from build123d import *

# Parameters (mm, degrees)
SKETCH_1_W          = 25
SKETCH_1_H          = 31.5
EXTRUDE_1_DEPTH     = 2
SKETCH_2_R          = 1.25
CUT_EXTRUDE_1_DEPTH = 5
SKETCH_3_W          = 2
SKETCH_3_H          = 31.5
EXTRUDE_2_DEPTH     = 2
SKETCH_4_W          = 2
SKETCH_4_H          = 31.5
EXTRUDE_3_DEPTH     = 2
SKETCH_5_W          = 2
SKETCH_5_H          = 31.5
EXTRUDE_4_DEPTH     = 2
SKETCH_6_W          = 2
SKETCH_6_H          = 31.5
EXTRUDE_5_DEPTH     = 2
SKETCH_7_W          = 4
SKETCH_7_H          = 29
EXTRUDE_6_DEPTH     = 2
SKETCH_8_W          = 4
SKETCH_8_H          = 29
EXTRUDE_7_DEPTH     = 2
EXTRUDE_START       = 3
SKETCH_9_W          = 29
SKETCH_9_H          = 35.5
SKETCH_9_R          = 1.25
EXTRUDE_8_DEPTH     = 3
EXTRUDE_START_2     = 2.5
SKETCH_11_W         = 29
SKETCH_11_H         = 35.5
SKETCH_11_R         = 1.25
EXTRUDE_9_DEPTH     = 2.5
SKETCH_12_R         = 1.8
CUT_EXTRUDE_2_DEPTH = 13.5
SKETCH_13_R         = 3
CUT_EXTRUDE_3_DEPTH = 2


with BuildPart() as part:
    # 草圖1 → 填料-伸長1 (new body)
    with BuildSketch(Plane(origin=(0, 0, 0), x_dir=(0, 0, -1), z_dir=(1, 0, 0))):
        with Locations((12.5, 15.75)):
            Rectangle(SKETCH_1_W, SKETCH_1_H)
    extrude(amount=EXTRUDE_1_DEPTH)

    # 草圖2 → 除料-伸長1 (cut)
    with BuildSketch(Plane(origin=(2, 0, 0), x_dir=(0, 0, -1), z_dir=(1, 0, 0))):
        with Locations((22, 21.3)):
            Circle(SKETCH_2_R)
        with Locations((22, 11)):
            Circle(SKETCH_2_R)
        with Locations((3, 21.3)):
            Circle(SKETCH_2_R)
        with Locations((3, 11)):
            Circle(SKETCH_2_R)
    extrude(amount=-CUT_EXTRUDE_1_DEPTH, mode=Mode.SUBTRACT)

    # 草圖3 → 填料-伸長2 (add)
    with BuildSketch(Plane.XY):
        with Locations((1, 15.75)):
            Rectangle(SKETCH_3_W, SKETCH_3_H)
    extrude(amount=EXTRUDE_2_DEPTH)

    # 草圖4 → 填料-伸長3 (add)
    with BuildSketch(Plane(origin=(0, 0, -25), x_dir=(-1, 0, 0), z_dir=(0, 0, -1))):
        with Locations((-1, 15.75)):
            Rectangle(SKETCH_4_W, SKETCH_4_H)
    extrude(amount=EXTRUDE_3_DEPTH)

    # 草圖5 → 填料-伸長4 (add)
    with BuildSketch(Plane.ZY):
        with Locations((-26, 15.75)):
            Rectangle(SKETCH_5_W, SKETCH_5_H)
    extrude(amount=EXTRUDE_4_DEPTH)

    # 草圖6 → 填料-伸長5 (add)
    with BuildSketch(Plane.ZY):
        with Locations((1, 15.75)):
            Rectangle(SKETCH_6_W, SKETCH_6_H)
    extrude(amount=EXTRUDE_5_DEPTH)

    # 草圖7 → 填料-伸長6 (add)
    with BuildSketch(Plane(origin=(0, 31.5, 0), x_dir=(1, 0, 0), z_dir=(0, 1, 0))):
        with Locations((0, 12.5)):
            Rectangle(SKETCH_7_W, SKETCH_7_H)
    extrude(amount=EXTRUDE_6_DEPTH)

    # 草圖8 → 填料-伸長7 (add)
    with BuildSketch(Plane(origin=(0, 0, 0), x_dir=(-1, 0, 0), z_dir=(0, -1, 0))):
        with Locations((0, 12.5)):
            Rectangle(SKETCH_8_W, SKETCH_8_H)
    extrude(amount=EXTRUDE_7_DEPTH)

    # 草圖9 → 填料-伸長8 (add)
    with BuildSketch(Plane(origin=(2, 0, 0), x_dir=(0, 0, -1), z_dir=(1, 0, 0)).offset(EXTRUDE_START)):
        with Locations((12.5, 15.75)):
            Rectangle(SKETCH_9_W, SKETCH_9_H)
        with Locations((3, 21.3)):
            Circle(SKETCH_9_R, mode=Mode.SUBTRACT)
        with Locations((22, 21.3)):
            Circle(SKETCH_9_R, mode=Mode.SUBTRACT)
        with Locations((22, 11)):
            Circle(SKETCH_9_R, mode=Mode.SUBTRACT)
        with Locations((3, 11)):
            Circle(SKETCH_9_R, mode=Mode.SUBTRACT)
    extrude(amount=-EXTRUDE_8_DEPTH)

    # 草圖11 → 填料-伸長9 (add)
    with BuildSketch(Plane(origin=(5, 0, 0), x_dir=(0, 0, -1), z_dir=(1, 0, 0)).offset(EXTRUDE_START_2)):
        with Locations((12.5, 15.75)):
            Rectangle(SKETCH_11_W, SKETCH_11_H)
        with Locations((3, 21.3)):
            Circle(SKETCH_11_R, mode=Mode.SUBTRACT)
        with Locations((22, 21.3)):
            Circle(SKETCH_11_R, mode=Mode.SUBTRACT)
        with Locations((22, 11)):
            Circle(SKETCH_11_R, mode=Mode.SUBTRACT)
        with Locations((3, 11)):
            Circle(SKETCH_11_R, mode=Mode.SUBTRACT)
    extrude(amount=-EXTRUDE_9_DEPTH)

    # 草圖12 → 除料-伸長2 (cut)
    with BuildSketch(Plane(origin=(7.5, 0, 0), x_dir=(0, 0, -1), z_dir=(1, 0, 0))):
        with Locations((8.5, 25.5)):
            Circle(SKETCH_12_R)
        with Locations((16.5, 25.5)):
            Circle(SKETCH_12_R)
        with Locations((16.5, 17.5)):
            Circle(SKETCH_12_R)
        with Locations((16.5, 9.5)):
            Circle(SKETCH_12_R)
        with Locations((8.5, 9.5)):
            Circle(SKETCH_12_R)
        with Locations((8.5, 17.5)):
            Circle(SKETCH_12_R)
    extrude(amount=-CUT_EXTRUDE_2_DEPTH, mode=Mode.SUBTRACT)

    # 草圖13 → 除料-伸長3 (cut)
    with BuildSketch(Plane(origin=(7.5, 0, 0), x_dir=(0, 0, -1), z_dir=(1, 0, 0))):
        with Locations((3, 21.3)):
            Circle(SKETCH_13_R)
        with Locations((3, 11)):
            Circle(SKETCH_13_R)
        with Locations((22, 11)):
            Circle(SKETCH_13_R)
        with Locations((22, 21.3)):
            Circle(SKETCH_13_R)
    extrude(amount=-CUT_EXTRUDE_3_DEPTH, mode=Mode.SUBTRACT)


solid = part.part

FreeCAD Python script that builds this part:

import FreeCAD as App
import Part
import Sketcher

V = App.Vector
Q = App.Units.Quantity


def add_polygon(sketch, points):
    """Adds a closed chain of lines whose ends are joined by coincident constraints."""
    first, n = sketch.GeometryCount, len(points)
    for a, b in zip(points, points[1:] + points[:1]):
        sketch.addGeometry(Part.LineSegment(App.Vector(*a, 0), App.Vector(*b, 0)), False)
    for i in range(n):
        sketch.addConstraint(Sketcher.Constraint("Coincident", first + i, 2, first + (i + 1) % n, 1))

doc = App.newDocument("Part")
body = doc.addObject("PartDesign::Body", "Body")

# Sketch on YZ plane
sketch1 = body.newObject("Sketcher::SketchObject", "Sketch")
sketch1.AttachmentSupport = (doc.getObject("YZ_Plane"), [""])
sketch1.MapMode = "FlatFace"
add_polygon(sketch1, [(32, 0), (0, 0), (0, -25), (32, -25)])  # lines 0-3
sketch1.addConstraint([
    Sketcher.Constraint("Horizontal", 0),
    Sketcher.Constraint("Vertical", 1),
    Sketcher.Constraint("Horizontal", 2),
    Sketcher.Constraint("Vertical", 3),
    Sketcher.Constraint("Coincident", 0, 2, -1, 1),
    Sketcher.Constraint("DistanceY", 1, 2, 1, 1, Q("25 mm")),
    Sketcher.Constraint("DistanceX", 0, 2, 0, 1, Q("31.5 mm")),
])
pad1 = body.newObject("PartDesign::Pad", "Pad")
pad1.Profile = sketch1
pad1.Length = 2

# Sketch on YZ plane
sketch2 = body.newObject("Sketcher::SketchObject", "Sketch001")
sketch2.AttachmentSupport = (doc.getObject("YZ_Plane"), [""])
sketch2.MapMode = "FlatFace"
sketch2.AttachmentOffset = App.Placement(V(0, 0, 2), App.Rotation())
sketch2.addGeometry([
    Part.Circle(V(21.3, -22, 0), V(0, 0, 1), 1.2),
    Part.Circle(V(11, -22, 0), V(0, 0, 1), 1.2),
    Part.Circle(V(21.3, -3, 0), V(0, 0, 1), 1.2),
    Part.Circle(V(11, -3, 0), V(0, 0, 1), 1.2),
], False)
sketch2.addConstraint([
    Sketcher.Constraint("Equal", 0, 1),
    Sketcher.Constraint("Equal", 1, 2),
    Sketcher.Constraint("Equal", 2, 3),
    Sketcher.Constraint("Horizontal", 0, 3, 1, 3),
    Sketcher.Constraint("Horizontal", 2, 3, 3, 3),
    Sketcher.Constraint("Vertical", 0, 3, 2, 3),
    Sketcher.Constraint("Vertical", 1, 3, 3, 3),
    Sketcher.Constraint("Diameter", 0, Q("2.5 mm")),
    Sketcher.Constraint("DistanceY", 0, 3, -1, 1, Q("22 mm")),
    Sketcher.Constraint("DistanceX", -1, 1, 1, 3, Q("11 mm")),
    Sketcher.Constraint("DistanceY", 2, 3, -1, 1, Q("3 mm")),
    Sketcher.Constraint("DistanceX", -1, 1, 0, 3, Q("21.3 mm")),
])
pocket1 = body.newObject("PartDesign::Pocket", "Pocket")
pocket1.Profile = sketch2
pocket1.Length = 5

# Sketch on XY plane
sketch3 = body.newObject("Sketcher::SketchObject", "Sketch002")
sketch3.AttachmentSupport = (doc.getObject("XY_Plane"), [""])
sketch3.MapMode = "FlatFace"
add_polygon(sketch3, [(0, 31.5), (0, 0), (2, 0), (2, 31.5)])  # lines 0-3
sketch3.addConstraint([
    Sketcher.Constraint("Vertical", 0),
    Sketcher.Constraint("Horizontal", 1),
    Sketcher.Constraint("Vertical", 2),
    Sketcher.Constraint("Horizontal", 3),
    Sketcher.Constraint("Coincident", 0, 2, -1, 1),
    Sketcher.Constraint("DistanceX", 1, 1, 1, 2, Q("2 mm")),
    Sketcher.Constraint("DistanceY", 0, 2, 0, 1, Q("31.5 mm")),
])
pad2 = body.newObject("PartDesign::Pad", "Pad001")
pad2.Profile = sketch3
pad2.Length = 2

# Sketch on XY plane
sketch4 = body.newObject("Sketcher::SketchObject", "Sketch003")
sketch4.AttachmentSupport = (doc.getObject("XY_Plane"), [""])
sketch4.MapMode = "FlatFace"
sketch4.AttachmentOffset = App.Placement(V(0, 0, -25), App.Rotation())
add_polygon(sketch4, [(2, 31.5), (2, 0), (0, 0), (0, 31.5)])  # lines 0-3
sketch4.addConstraint([
    Sketcher.Constraint("Vertical", 0),
    Sketcher.Constraint("Horizontal", 1),
    Sketcher.Constraint("Vertical", 2),
    Sketcher.Constraint("Horizontal", 3),
    Sketcher.Constraint("Coincident", 1, 2, -1, 1),
    Sketcher.Constraint("DistanceX", 1, 2, 1, 1, Q("2 mm")),
    Sketcher.Constraint("DistanceY", 0, 2, 0, 1, Q("31.5 mm")),
])
pad3 = body.newObject("PartDesign::Pad", "Pad002")
pad3.Profile = sketch4
pad3.Length = 2
pad3.Reversed = True

# Sketch on YZ plane
sketch5 = body.newObject("Sketcher::SketchObject", "Sketch004")
sketch5.AttachmentSupport = (doc.getObject("YZ_Plane"), [""])
sketch5.MapMode = "FlatFace"
add_polygon(sketch5, [(31.5, -27), (0, -27), (0, -25), (31.5, -25)])  # lines 0-3
sketch5.addConstraint([
    Sketcher.Constraint("Horizontal", 0),
    Sketcher.Constraint("Vertical", 1),
    Sketcher.Constraint("Horizontal", 2),
    Sketcher.Constraint("Vertical", 3),
    Sketcher.Constraint("PointOnObject", 0, 2, -2),
    Sketcher.Constraint("DistanceY", 1, 1, 1, 2, Q("2 mm")),
    Sketcher.Constraint("DistanceX", 0, 2, 0, 1, Q("31.5 mm")),
    Sketcher.Constraint("DistanceY", 0, 2, -1, 1, Q("27 mm")),
])
pad4 = body.newObject("PartDesign::Pad", "Pad003")
pad4.Profile = sketch5
pad4.Length = 2
pad4.Reversed = True

# Sketch on YZ plane
sketch6 = body.newObject("Sketcher::SketchObject", "Sketch005")
sketch6.AttachmentSupport = (doc.getObject("YZ_Plane"), [""])
sketch6.MapMode = "FlatFace"
add_polygon(sketch6, [(31.5, 0), (0, 0), (0, 2), (31.5, 2)])  # lines 0-3
sketch6.addConstraint([
    Sketcher.Constraint("Horizontal", 0),
    Sketcher.Constraint("Vertical", 1),
    Sketcher.Constraint("Horizontal", 2),
    Sketcher.Constraint("Vertical", 3),
    Sketcher.Constraint("Coincident", 0, 2, -1, 1),
    Sketcher.Constraint("DistanceY", 1, 1, 1, 2, Q("2 mm")),
    Sketcher.Constraint("DistanceX", 0, 2, 0, 1, Q("31.5 mm")),
])
pad5 = body.newObject("PartDesign::Pad", "Pad004")
pad5.Profile = sketch6
pad5.Length = 2
pad5.Reversed = True

# Sketch on XZ plane
sketch7 = body.newObject("Sketcher::SketchObject", "Sketch006")
sketch7.AttachmentSupport = (doc.getObject("XZ_Plane"), [""])
sketch7.MapMode = "FlatFace"
sketch7.AttachmentOffset = App.Placement(V(0, 0, -31.5), App.Rotation())
add_polygon(sketch7, [(-2, -27), (-2, 2), (2, 2), (2, -27)])  # lines 0-3
sketch7.addConstraint([
    Sketcher.Constraint("Vertical", 0),
    Sketcher.Constraint("Horizontal", 1),
    Sketcher.Constraint("Vertical", 2),
    Sketcher.Constraint("Horizontal", 3),
    Sketcher.Constraint("DistanceX", 1, 1, 1, 2, Q("4 mm")),
    Sketcher.Constraint("DistanceY", 0, 1, 0, 2, Q("29 mm")),
    Sketcher.Constraint("DistanceX", 0, 2, -1, 1, Q("2 mm")),
    Sketcher.Constraint("DistanceY", -1, 1, 0, 2, Q("2 mm")),
])
pad6 = body.newObject("PartDesign::Pad", "Pad005")
pad6.Profile = sketch7
pad6.Length = 2
pad6.Reversed = True

# Sketch on XZ plane
sketch8 = body.newObject("Sketcher::SketchObject", "Sketch007")
sketch8.AttachmentSupport = (doc.getObject("XZ_Plane"), [""])
sketch8.MapMode = "FlatFace"
add_polygon(sketch8, [(2, -27), (2, 2), (-2, 2), (-2, -27)])  # lines 0-3
sketch8.addConstraint([
    Sketcher.Constraint("Vertical", 0),
    Sketcher.Constraint("Horizontal", 1),
    Sketcher.Constraint("Vertical", 2),
    Sketcher.Constraint("Horizontal", 3),
    Sketcher.Constraint("DistanceX", 1, 2, 1, 1, Q("4 mm")),
    Sketcher.Constraint("DistanceY", 0, 1, 0, 2, Q("29 mm")),
    Sketcher.Constraint("DistanceX", -1, 1, 0, 2, Q("2 mm")),
    Sketcher.Constraint("DistanceY", -1, 1, 0, 2, Q("2 mm")),
])
pad7 = body.newObject("PartDesign::Pad", "Pad006")
pad7.Profile = sketch8
pad7.Length = 2

# Sketch on YZ plane
sketch9 = body.newObject("Sketcher::SketchObject", "Sketch008")
sketch9.AttachmentSupport = (doc.getObject("YZ_Plane"), [""])
sketch9.MapMode = "FlatFace"
sketch9.AttachmentOffset = App.Placement(V(0, 0, 5), App.Rotation())
add_polygon(sketch9, [(33.5, 2), (-2, 2), (-2, -27), (33.5, -27)])  # lines 0-3
sketch9.addGeometry(Part.Circle(V(11, -3, 0), V(0, 0, 1), 1.2), False)  # 4
sketch9.addGeometry(Part.Circle(V(11, -22, 0), V(0, 0, 1), 1.2), False)  # 5
sketch9.addGeometry(Part.Circle(V(21.3, -3, 0), V(0, 0, 1), 1.2), False)  # 6
sketch9.addGeometry(Part.Circle(V(21.3, -22, 0), V(0, 0, 1), 1.2), False)  # 7
sketch9.addConstraint([
    Sketcher.Constraint("Horizontal", 0),
    Sketcher.Constraint("Vertical", 1),
    Sketcher.Constraint("Horizontal", 2),
    Sketcher.Constraint("Vertical", 3),
    Sketcher.Constraint("Equal", 4, 5),
    Sketcher.Constraint("Equal", 5, 6),
    Sketcher.Constraint("Equal", 6, 7),
    Sketcher.Constraint("Horizontal", 4, 3, 6, 3),
    Sketcher.Constraint("Horizontal", 5, 3, 7, 3),
    Sketcher.Constraint("Vertical", 4, 3, 5, 3),
    Sketcher.Constraint("Vertical", 6, 3, 7, 3),
    Sketcher.Constraint("Diameter", 4, Q("2.5 mm")),
    Sketcher.Constraint("DistanceY", 1, 2, 1, 1, Q("29 mm")),
    Sketcher.Constraint("DistanceX", 0, 2, 0, 1, Q("35.5 mm")),
    Sketcher.Constraint("DistanceX", -1, 1, 4, 3, Q("11 mm")),
    Sketcher.Constraint("DistanceY", 4, 3, -1, 1, Q("3 mm")),
    Sketcher.Constraint("DistanceY", 5, 3, -1, 1, Q("22 mm")),
    Sketcher.Constraint("DistanceX", 0, 2, -1, 1, Q("2 mm")),
    Sketcher.Constraint("DistanceY", -1, 1, 0, 2, Q("2 mm")),
    Sketcher.Constraint("DistanceX", -1, 1, 6, 3, Q("21.3 mm")),
])
pad8 = body.newObject("PartDesign::Pad", "Pad007")
pad8.Profile = sketch9
pad8.Length = 3
pad8.Reversed = True

# Sketch on YZ plane
sketch10 = body.newObject("Sketcher::SketchObject", "Sketch009")
sketch10.AttachmentSupport = (doc.getObject("YZ_Plane"), [""])
sketch10.MapMode = "FlatFace"
sketch10.AttachmentOffset = App.Placement(V(0, 0, 7.5), App.Rotation())
add_polygon(sketch10, [(33.5, 2), (-2, 2), (-2, -27), (33.5, -27)])  # lines 0-3
sketch10.addGeometry(Part.Circle(V(11, -3, 0), V(0, 0, 1), 1.2), False)  # 4
sketch10.addGeometry(Part.Circle(V(11, -22, 0), V(0, 0, 1), 1.2), False)  # 5
sketch10.addGeometry(Part.Circle(V(21.3, -3, 0), V(0, 0, 1), 1.2), False)  # 6
sketch10.addGeometry(Part.Circle(V(21.3, -22, 0), V(0, 0, 1), 1.2), False)  # 7
sketch10.addConstraint([
    Sketcher.Constraint("Horizontal", 0),
    Sketcher.Constraint("Vertical", 1),
    Sketcher.Constraint("Horizontal", 2),
    Sketcher.Constraint("Vertical", 3),
    Sketcher.Constraint("Equal", 4, 5),
    Sketcher.Constraint("Equal", 5, 6),
    Sketcher.Constraint("Equal", 6, 7),
    Sketcher.Constraint("Horizontal", 4, 3, 6, 3),
    Sketcher.Constraint("Horizontal", 5, 3, 7, 3),
    Sketcher.Constraint("Vertical", 4, 3, 5, 3),
    Sketcher.Constraint("Vertical", 6, 3, 7, 3),
    Sketcher.Constraint("Diameter", 4, Q("2.5 mm")),
    Sketcher.Constraint("DistanceY", 1, 2, 1, 1, Q("29 mm")),
    Sketcher.Constraint("DistanceX", 0, 2, 0, 1, Q("35.5 mm")),
    Sketcher.Constraint("DistanceX", -1, 1, 4, 3, Q("11 mm")),
    Sketcher.Constraint("DistanceY", 4, 3, -1, 1, Q("3 mm")),
    Sketcher.Constraint("DistanceY", 5, 3, -1, 1, Q("22 mm")),
    Sketcher.Constraint("DistanceX", 0, 2, -1, 1, Q("2 mm")),
    Sketcher.Constraint("DistanceY", -1, 1, 0, 2, Q("2 mm")),
    Sketcher.Constraint("DistanceX", -1, 1, 6, 3, Q("21.3 mm")),
])
pad9 = body.newObject("PartDesign::Pad", "Pad008")
pad9.Profile = sketch10
pad9.Length = 2.5
pad9.Reversed = True

# Sketch on YZ plane
sketch11 = body.newObject("Sketcher::SketchObject", "Sketch010")
sketch11.AttachmentSupport = (doc.getObject("YZ_Plane"), [""])
sketch11.MapMode = "FlatFace"
sketch11.AttachmentOffset = App.Placement(V(0, 0, 7.5), App.Rotation())
sketch11.addGeometry([
    Part.Circle(V(25.5, -8.5, 0), V(0, 0, 1), 1.8),  # 0
    Part.Circle(V(25.5, -16.5, 0), V(0, 0, 1), 1.8),  # 1
    Part.Circle(V(17.5, -16.5, 0), V(0, 0, 1), 1.8),  # 2
    Part.Circle(V(9.5, -16.5, 0), V(0, 0, 1), 1.8),  # 3
    Part.Circle(V(9.5, -8.5, 0), V(0, 0, 1), 1.8),  # 4
    Part.Circle(V(17.5, -8.5, 0), V(0, 0, 1), 1.8),  # 5
], False)
sketch11.addConstraint([
    Sketcher.Constraint("Equal", 0, 1),
    Sketcher.Constraint("Equal", 1, 2),
    Sketcher.Constraint("Equal", 2, 3),
    Sketcher.Constraint("Equal", 3, 4),
    Sketcher.Constraint("Equal", 4, 5),
    Sketcher.Constraint("Horizontal", 1, 3, 2, 3),
    Sketcher.Constraint("Horizontal", 2, 3, 3, 3),
    Sketcher.Constraint("Horizontal", 0, 3, 4, 3),
    Sketcher.Constraint("Horizontal", 4, 3, 5, 3),
    Sketcher.Constraint("Vertical", 0, 3, 1, 3),
    Sketcher.Constraint("Vertical", 3, 3, 4, 3),
    Sketcher.Constraint("Vertical", 2, 3, 5, 3),
    Sketcher.Constraint("Diameter", 0, Q("3.6 mm")),
    Sketcher.Constraint("DistanceY", 1, 3, 0, 3, Q("8 mm")),
    Sketcher.Constraint("DistanceX", 2, 3, 1, 3, Q("8 mm")),
    Sketcher.Constraint("DistanceX", 3, 3, 2, 3, Q("8 mm")),
    Sketcher.Constraint("DistanceX", -1, 1, 0, 3, Q("25.5 mm")),
    Sketcher.Constraint("DistanceY", 0, 3, -1, 1, Q("8.5 mm")),
])
pocket2 = body.newObject("PartDesign::Pocket", "Pocket001")
pocket2.Profile = sketch11
pocket2.Length = 13.5

# Sketch on YZ plane
sketch12 = body.newObject("Sketcher::SketchObject", "Sketch011")
sketch12.AttachmentSupport = (doc.getObject("YZ_Plane"), [""])
sketch12.MapMode = "FlatFace"
sketch12.AttachmentOffset = App.Placement(V(0, 0, 7.5), App.Rotation())
sketch12.addGeometry([
    Part.Circle(V(21.3, -3, 0), V(0, 0, 1), 3),
    Part.Circle(V(11, -3, 0), V(0, 0, 1), 3),
    Part.Circle(V(11, -22, 0), V(0, 0, 1), 3),
    Part.Circle(V(21.3, -22, 0), V(0, 0, 1), 3),
], False)
sketch12.addConstraint([
    Sketcher.Constraint("Equal", 0, 1),
    Sketcher.Constraint("Equal", 1, 2),
    Sketcher.Constraint("Equal", 2, 3),
    Sketcher.Constraint("Horizontal", 0, 3, 1, 3),
    Sketcher.Constraint("Horizontal", 2, 3, 3, 3),
    Sketcher.Constraint("Vertical", 1, 3, 2, 3),
    Sketcher.Constraint("Vertical", 0, 3, 3, 3),
    Sketcher.Constraint("Diameter", 0, Q("6 mm")),
    Sketcher.Constraint("DistanceY", 0, 3, -1, 1, Q("3 mm")),
    Sketcher.Constraint("DistanceX", -1, 1, 1, 3, Q("11 mm")),
    Sketcher.Constraint("DistanceY", 2, 3, -1, 1, Q("22 mm")),
    Sketcher.Constraint("DistanceX", -1, 1, 0, 3, Q("21.3 mm")),
])
pocket3 = body.newObject("PartDesign::Pocket", "Pocket002")
pocket3.Profile = sketch12
pocket3.Length = 2

doc.recompute()
